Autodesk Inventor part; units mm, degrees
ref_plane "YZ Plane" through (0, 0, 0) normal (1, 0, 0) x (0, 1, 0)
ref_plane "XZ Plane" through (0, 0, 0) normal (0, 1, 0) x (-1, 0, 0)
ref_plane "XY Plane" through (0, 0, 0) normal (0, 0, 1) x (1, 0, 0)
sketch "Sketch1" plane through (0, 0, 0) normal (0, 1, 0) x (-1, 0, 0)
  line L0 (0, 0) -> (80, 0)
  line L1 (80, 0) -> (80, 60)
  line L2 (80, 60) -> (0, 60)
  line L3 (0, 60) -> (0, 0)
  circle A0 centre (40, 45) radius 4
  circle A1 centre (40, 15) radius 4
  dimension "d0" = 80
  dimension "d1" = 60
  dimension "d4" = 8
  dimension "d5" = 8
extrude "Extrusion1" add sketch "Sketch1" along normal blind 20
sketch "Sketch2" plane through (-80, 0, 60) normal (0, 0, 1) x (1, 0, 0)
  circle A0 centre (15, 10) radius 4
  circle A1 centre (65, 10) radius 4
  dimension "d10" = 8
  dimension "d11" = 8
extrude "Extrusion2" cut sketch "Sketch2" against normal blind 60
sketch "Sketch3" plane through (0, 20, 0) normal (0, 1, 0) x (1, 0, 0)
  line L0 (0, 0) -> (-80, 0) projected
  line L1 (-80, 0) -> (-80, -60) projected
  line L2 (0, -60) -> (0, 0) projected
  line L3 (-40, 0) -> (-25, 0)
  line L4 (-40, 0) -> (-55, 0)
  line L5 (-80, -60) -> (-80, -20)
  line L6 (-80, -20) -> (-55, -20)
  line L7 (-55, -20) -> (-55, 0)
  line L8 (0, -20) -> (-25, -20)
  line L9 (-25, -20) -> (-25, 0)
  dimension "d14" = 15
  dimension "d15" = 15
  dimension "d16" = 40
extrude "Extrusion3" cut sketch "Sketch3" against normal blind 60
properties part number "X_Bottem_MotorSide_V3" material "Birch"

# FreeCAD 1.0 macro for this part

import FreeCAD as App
import Part
import Sketcher

doc = App.newDocument("Part")
body = doc.addObject("PartDesign::Body", "Body")

# Sketch on XZ plane
sketch1 = body.newObject("Sketcher::SketchObject", "Sketch")
sketch1.AttachmentSupport = (doc.getObject("XZ_Plane"), [""])
sketch1.MapMode = "FlatFace"
sketch1.addGeometry([
    Part.LineSegment(App.Vector(0, 60, 0), App.Vector(0, 0, 0)),  # 0
    Part.LineSegment(App.Vector(0, 0, 0), App.Vector(-80, 0, 0)),  # 1
    Part.LineSegment(App.Vector(-80, 0, 0), App.Vector(-80, 60, 0)),  # 2
    Part.LineSegment(App.Vector(-80, 60, 0), App.Vector(0, 60, 0)),  # 3
    Part.Circle(App.Vector(-40, 15, 0), App.Vector(0, 0, 1), 4),  # 4
    Part.Circle(App.Vector(-40, 45, 0), App.Vector(0, 0, 1), 4),  # 5
], False)
sketch1.addConstraint([
    Sketcher.Constraint("Coincident", 0, 2, 1, 1),
    Sketcher.Constraint("Coincident", 1, 2, 2, 1),
    Sketcher.Constraint("Coincident", 2, 2, 3, 1),
    Sketcher.Constraint("Coincident", 3, 2, 0, 1),
    Sketcher.Constraint("Vertical", 0),
    Sketcher.Constraint("Horizontal", 1),
    Sketcher.Constraint("Vertical", 2),
    Sketcher.Constraint("Horizontal", 3),
    Sketcher.Constraint("Coincident", 0, 2, -1, 1),
    Sketcher.Constraint("Equal", 4, 5),
    Sketcher.Constraint("Vertical", 4, 3, 5, 3),
    Sketcher.Constraint("Diameter", 4, 8.0),
    Sketcher.Constraint("DistanceX", 1, 2, 1, 1, 80.0),
    Sketcher.Constraint("DistanceY", 0, 2, 0, 1, 60.0),
    Sketcher.Constraint("DistanceX", 4, 3, -1, 1, 40.0),
    Sketcher.Constraint("DistanceY", -1, 1, 4, 3, 15.0),
    Sketcher.Constraint("DistanceY", -1, 1, 5, 3, 45.0),
])
pad1 = body.newObject("PartDesign::Pad", "Pad")
pad1.Profile = sketch1
pad1.Length = 20
pad1.Reversed = True

# Sketch on XY plane
sketch2 = body.newObject("Sketcher::SketchObject", "Sketch001")
sketch2.AttachmentSupport = (doc.getObject("XY_Plane"), [""])
sketch2.MapMode = "FlatFace"
sketch2.AttachmentOffset = App.Placement(App.Vector(0, 0, 60), App.Rotation())
sketch2.addGeometry([
    Part.Circle(App.Vector(-65, 10, 0), App.Vector(0, 0, 1), 4),
    Part.Circle(App.Vector(-15, 10, 0), App.Vector(0, 0, 1), 4),
], False)
sketch2.addConstraint([
    Sketcher.Constraint("Equal", 0, 1),
    Sketcher.Constraint("Horizontal", 0, 3, 1, 3),
    Sketcher.Constraint("Diameter", 0, 8.0),
    Sketcher.Constraint("DistanceX", 0, 3, -1, 1, 65.0),
    Sketcher.Constraint("DistanceY", -1, 1, 0, 3, 10.0),
    Sketcher.Constraint("DistanceX", 1, 3, -1, 1, 15.0),
])
pocket1 = body.newObject("PartDesign::Pocket", "Pocket")
pocket1.Profile = sketch2
pocket1.Length = 60

# Sketch on XZ plane
sketch3 = body.newObject("Sketcher::SketchObject", "Sketch002")
sketch3.AttachmentSupport = (doc.getObject("XZ_Plane"), [""])
sketch3.MapMode = "FlatFace"
sketch3.AttachmentOffset = App.Placement(App.Vector(0, 0, -20), App.Rotation())
sketch3.addGeometry([
    Part.LineSegment(App.Vector(0, 20, 0), App.Vector(0, 0, 0)),  # 0
    Part.LineSegment(App.Vector(0, 0, 0), App.Vector(-25, 0, 0)),  # 1
    Part.LineSegment(App.Vector(-25, 0, 0), App.Vector(-25, 20, 0)),  # 2
    Part.LineSegment(App.Vector(-25, 20, 0), App.Vector(0, 20, 0)),  # 3
    Part.LineSegment(App.Vector(-55, 20, 0), App.Vector(-55, 0, 0)),  # 4
    Part.LineSegment(App.Vector(-55, 0, 0), App.Vector(-80, 0, 0)),  # 5
    Part.LineSegment(App.Vector(-80, 0, 0), App.Vector(-80, 20, 0)),  # 6
    Part.LineSegment(App.Vector(-80, 20, 0), App.Vector(-55, 20, 0)),  # 7
], False)
sketch3.addConstraint([
    Sketcher.Constraint("Coincident", 0, 2, 1, 1),
    Sketcher.Constraint("Coincident", 1, 2, 2, 1),
    Sketcher.Constraint("Coincident", 2, 2, 3, 1),
    Sketcher.Constraint("Coincident", 3, 2, 0, 1),
    Sketcher.Constraint("Coincident", 4, 2, 5, 1),
    Sketcher.Constraint("Coincident", 5, 2, 6, 1),
    Sketcher.Constraint("Coincident", 6, 2, 7, 1),
    Sketcher.Constraint("Coincident", 7, 2, 4, 1),
    Sketcher.Constraint("Vertical", 0),
    Sketcher.Constraint("Horizontal", 1),
    Sketcher.Constraint("Vertical", 2),
    Sketcher.Constraint("Horizontal", 3),
    Sketcher.Constraint("Vertical", 4),
    Sketcher.Constraint("Horizontal", 5),
    Sketcher.Constraint("Vertical", 6),
    Sketcher.Constraint("Horizontal", 7),
    Sketcher.Constraint("Coincident", 0, 2, -1, 1),
    Sketcher.Constraint("PointOnObject", 4, 2, -1),
    Sketcher.Constraint("Horizontal", 3, 2, 6, 2),
    Sketcher.Constraint("Equal", 3, 5),
    Sketcher.Constraint("DistanceX", 1, 2, 1, 1, 25.0),
    Sketcher.Constraint("DistanceY", 0, 2, 0, 1, 20.0),
    Sketcher.Constraint("DistanceX", 4, 2, -1, 1, 55.0),
])
pocket2 = body.newObject("PartDesign::Pocket", "Pocket001")
pocket2.Profile = sketch3
pocket2.Length = 60
pocket2.Reversed = True

doc.recompute()
